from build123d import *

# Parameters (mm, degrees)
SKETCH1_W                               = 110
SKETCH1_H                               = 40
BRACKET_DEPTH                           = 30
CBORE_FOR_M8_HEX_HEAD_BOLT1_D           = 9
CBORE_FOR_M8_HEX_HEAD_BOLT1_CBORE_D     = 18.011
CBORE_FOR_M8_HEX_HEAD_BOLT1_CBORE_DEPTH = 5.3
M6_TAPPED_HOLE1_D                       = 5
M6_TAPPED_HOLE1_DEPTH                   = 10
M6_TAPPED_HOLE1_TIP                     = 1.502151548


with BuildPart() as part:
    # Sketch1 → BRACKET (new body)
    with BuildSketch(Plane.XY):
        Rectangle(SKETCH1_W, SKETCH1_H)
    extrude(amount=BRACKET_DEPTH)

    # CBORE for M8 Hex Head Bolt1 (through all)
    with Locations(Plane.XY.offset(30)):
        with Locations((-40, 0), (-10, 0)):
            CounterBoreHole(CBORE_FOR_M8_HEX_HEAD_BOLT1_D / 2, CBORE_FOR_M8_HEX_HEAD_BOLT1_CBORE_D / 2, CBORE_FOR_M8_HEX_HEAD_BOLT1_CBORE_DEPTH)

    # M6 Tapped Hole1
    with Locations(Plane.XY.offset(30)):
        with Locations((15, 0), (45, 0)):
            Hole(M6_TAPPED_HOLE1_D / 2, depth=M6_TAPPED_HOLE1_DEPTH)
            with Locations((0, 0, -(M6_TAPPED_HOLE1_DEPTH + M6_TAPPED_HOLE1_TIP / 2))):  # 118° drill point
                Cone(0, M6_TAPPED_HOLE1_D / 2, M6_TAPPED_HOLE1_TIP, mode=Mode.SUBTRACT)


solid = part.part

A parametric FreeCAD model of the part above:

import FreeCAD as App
import Part
import Sketcher

V = App.Vector
Q = App.Units.Quantity


def add_polygon(sketch, points):
    """Adds a closed chain of lines whose ends are joined by coincident constraints."""
    first, n = sketch.GeometryCount, len(points)
    for a, b in zip(points, points[1:] + points[:1]):
        sketch.addGeometry(Part.LineSegment(App.Vector(*a, 0), App.Vector(*b, 0)), False)
    for i in range(n):
        sketch.addConstraint(Sketcher.Constraint("Coincident", first + i, 2, first + (i + 1) % n, 1))

doc = App.newDocument("Part")
body = doc.addObject("PartDesign::Body", "Body")

sketch1 = doc.addObject("Sketcher::SketchObject", "Sketch")
body.addObject(sketch1)
sketch1.AttachmentSupport = (doc.XY_Plane, [""])
sketch1.MapMode = "FlatFace"
add_polygon(sketch1, [(-55, 20), (-55, -20), (55, -20), (55, 20)])
sketch1.addConstraint([
    Sketcher.Constraint("Vertical", 0),
    Sketcher.Constraint("Horizontal", 1),
    Sketcher.Constraint("Vertical", 2),
    Sketcher.Constraint("Horizontal", 3),
    Sketcher.Constraint("Symmetric", 0, 2, 2, 2, -1, 1),
    Sketcher.Constraint("DistanceX", 1, 1, 1, 2, Q("110 mm")),
    Sketcher.Constraint("DistanceY", 0, 2, 0, 1, Q("40 mm")),
])
pad1 = doc.addObject("PartDesign::Pad", "Pad")
body.addObject(pad1)
pad1.Profile = sketch1
pad1.Length = 30

sketch2 = doc.addObject("Sketcher::SketchObject", "Sketch001")
body.addObject(sketch2)
sketch2.AttachmentSupport = (doc.XY_Plane, [""])
sketch2.MapMode = "FlatFace"
sketch2.AttachmentOffset = App.Placement(V(0, 0, 30), App.Rotation())
sketch2.addGeometry([
    Part.Circle(V(-40, 0, 0), V(0, 0, 1), 4.5),
    Part.Circle(V(-10, 0, 0), V(0, 0, 1), 4.5),
], False)
sketch2.addConstraint([
    Sketcher.Constraint("Equal", 0, 1),
    Sketcher.Constraint("PointOnObject", 0, 3, -1),
    Sketcher.Constraint("PointOnObject", 1, 3, -1),
    Sketcher.Constraint("Diameter", 0, Q("9 mm")),
    Sketcher.Constraint("DistanceX", 0, 3, -1, 1, Q("40 mm")),
    Sketcher.Constraint("DistanceX", 1, 3, -1, 1, Q("10 mm")),
])
doc.recompute()
hole = doc.addObject("PartDesign::Hole", "Hole")
body.addObject(hole)
hole.Profile = sketch2
hole.ThreadType = "None"
hole.Diameter = 9
hole.DepthType = "ThroughAll"
hole.HoleCutType = "Counterbore"
hole.HoleCutDiameter = 18.011
hole.HoleCutDepth = 5.3

sketch3 = doc.addObject("Sketcher::SketchObject", "Sketch002")
body.addObject(sketch3)
sketch3.AttachmentSupport = (doc.XY_Plane, [""])
sketch3.MapMode = "FlatFace"
sketch3.AttachmentOffset = App.Placement(V(0, 0, 30), App.Rotation())
sketch3.addGeometry([
    Part.Circle(V(15, 0, 0), V(0, 0, 1), 2.5),
    Part.Circle(V(45, 0, 0), V(0, 0, 1), 2.5),
], False)
sketch3.addConstraint([
    Sketcher.Constraint("Equal", 0, 1),
    Sketcher.Constraint("PointOnObject", 0, 3, -1),
    Sketcher.Constraint("PointOnObject", 1, 3, -1),
    Sketcher.Constraint("Diameter", 0, Q("5 mm")),
    Sketcher.Constraint("DistanceX", -1, 1, 0, 3, Q("15 mm")),
    Sketcher.Constraint("DistanceX", -1, 1, 1, 3, Q("45 mm")),
])
doc.recompute()
hole2 = doc.addObject("PartDesign::Hole", "Hole001")
body.addObject(hole2)
hole2.Profile = sketch3
hole2.ThreadType = "None"
hole2.Diameter = 5
hole2.DepthType = "Dimension"
hole2.Depth = 10
hole2.DrillPoint = "Angled"
hole2.DrillPointAngle = 118

doc.recompute()
